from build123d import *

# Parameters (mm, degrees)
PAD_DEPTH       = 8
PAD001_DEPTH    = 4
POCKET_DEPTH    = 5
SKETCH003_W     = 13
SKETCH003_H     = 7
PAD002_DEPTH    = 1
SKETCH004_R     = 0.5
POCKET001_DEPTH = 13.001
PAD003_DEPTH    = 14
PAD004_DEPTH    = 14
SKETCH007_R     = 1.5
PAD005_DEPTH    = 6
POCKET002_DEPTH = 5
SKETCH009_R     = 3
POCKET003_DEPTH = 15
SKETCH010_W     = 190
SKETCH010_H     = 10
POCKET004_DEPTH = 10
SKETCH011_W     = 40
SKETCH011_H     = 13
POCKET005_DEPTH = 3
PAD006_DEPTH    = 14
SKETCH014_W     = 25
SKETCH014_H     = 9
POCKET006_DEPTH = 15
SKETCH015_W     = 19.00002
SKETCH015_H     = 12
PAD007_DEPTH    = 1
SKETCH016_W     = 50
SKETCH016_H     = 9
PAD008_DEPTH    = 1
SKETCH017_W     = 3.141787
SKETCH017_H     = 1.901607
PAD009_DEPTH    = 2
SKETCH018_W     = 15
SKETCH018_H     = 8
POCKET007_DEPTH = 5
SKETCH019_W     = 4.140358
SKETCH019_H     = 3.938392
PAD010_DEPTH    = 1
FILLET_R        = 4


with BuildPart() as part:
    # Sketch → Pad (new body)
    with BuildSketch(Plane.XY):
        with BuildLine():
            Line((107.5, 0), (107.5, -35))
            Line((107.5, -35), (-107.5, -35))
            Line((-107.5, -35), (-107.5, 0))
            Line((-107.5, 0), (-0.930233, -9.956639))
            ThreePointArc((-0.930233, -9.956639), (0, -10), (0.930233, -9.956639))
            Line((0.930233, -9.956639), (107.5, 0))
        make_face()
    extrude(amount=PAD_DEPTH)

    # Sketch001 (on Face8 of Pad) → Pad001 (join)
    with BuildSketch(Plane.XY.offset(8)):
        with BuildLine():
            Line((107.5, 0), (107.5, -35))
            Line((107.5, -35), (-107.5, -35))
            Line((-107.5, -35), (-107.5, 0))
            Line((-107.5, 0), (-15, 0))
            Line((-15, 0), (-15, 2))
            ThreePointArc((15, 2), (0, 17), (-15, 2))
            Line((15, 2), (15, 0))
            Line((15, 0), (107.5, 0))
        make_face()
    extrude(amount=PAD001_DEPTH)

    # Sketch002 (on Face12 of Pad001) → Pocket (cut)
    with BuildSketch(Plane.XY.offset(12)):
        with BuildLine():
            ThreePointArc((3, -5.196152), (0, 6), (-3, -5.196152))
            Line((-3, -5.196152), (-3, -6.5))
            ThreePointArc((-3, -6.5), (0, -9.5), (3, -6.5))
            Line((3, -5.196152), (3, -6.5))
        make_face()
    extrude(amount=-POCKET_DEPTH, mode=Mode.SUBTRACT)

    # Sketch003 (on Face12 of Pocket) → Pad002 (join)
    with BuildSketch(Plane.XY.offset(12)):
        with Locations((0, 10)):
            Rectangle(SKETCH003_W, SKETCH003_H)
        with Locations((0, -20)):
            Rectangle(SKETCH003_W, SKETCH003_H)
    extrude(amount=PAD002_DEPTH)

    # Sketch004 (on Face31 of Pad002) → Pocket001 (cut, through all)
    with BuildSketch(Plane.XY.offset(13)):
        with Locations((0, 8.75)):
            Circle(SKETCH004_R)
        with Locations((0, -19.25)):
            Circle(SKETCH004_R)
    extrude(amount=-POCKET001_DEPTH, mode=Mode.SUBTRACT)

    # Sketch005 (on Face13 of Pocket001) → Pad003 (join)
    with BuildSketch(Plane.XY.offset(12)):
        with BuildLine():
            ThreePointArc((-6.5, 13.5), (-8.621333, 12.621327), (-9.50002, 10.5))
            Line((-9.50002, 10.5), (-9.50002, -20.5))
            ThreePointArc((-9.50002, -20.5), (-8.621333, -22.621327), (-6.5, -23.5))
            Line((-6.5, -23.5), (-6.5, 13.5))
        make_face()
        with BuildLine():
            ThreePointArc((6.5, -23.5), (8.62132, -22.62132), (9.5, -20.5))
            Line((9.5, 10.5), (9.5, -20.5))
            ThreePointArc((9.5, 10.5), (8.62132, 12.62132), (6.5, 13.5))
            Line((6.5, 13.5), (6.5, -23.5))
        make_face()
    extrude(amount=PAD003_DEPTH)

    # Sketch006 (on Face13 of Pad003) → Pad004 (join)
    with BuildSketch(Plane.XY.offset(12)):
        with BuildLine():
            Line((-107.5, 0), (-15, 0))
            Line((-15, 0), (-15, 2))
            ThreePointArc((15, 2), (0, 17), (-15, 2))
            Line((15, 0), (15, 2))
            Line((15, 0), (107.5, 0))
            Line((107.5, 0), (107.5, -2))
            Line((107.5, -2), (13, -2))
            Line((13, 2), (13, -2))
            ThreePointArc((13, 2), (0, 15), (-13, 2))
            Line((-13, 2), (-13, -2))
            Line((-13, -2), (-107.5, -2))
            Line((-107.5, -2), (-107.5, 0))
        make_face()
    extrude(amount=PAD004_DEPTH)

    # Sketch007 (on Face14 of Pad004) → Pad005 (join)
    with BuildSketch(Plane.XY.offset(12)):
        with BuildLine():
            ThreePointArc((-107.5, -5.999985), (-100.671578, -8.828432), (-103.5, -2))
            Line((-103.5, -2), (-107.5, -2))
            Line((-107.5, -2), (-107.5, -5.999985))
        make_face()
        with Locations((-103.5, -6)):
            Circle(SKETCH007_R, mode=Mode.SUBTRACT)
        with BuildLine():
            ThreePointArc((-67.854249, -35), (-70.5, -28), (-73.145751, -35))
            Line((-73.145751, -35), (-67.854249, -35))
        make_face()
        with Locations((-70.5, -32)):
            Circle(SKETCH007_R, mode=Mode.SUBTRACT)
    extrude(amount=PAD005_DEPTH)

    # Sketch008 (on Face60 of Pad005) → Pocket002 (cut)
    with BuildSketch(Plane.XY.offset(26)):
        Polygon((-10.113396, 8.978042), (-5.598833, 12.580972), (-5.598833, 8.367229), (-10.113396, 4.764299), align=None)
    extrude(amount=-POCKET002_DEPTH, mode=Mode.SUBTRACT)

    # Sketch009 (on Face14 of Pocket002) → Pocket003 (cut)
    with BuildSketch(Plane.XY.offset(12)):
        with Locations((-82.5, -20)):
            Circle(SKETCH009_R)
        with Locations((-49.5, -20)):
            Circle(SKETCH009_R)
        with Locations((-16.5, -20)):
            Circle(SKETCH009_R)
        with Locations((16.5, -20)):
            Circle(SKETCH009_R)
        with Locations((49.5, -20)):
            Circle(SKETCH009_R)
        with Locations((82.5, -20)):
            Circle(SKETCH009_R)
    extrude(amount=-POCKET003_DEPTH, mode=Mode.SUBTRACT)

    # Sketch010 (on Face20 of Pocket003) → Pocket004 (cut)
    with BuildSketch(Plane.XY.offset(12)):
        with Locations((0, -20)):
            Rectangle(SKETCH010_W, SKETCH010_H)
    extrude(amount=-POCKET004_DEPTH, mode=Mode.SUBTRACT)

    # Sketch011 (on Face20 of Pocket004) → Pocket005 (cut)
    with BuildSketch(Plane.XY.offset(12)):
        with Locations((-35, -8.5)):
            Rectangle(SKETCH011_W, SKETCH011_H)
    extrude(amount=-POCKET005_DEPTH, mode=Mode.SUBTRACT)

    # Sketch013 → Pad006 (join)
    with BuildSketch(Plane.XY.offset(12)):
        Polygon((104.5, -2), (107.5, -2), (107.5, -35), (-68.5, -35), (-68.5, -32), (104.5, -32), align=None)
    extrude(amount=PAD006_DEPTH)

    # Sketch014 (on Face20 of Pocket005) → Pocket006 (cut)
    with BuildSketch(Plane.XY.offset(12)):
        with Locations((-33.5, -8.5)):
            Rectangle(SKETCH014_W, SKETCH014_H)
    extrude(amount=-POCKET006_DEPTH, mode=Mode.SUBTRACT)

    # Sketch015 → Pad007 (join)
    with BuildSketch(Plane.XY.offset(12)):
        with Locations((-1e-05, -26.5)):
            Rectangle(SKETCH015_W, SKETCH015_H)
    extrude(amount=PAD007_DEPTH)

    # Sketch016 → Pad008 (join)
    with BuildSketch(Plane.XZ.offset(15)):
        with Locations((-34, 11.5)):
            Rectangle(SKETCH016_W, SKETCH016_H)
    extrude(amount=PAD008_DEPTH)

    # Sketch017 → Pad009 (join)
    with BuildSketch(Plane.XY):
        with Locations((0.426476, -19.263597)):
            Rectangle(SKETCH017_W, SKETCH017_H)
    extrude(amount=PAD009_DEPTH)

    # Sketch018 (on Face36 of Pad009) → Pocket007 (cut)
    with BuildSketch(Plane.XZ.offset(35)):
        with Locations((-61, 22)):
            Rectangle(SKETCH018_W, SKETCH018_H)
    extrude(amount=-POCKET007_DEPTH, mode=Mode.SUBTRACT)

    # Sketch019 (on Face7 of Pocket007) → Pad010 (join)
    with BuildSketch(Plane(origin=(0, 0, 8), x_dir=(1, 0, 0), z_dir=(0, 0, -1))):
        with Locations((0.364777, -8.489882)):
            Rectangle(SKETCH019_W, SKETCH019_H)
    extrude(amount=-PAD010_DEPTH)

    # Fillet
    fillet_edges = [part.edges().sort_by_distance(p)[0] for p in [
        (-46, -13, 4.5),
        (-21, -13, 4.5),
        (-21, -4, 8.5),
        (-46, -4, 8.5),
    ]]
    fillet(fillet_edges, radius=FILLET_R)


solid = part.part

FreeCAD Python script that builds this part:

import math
import FreeCAD as App
import Part
import Sketcher

V = App.Vector


def edges_at(feature, points):
    """Names of the edges that pass closest to the given points."""
    edges = feature.Shape.Edges
    near = lambda p: min(range(len(edges)), key=lambda i: edges[i].distToShape(Part.Vertex(*p))[0])
    return sorted({f"Edge{near(p) + 1}" for p in points})

doc = App.newDocument("Part")
params = doc.addObject("Spreadsheet::Sheet", "Params")
for row, (alias, value) in enumerate([
    ("sketch1_width", "215 mm"),
    ("sketch1_height", "35 mm"),
    ("pad1_length", "8 mm"),
    ("sketch2_radius", "15 mm"),
    ("sketch2_width", "215 mm"),
    ("sketch2_height", "35 mm"),
    ("sketch2_height2", "2 mm"),
    ("pad2_length", "4 mm"),
    ("sketch3_radius", "6 mm"),
    ("sketch3_radius2", "3 mm"),
    ("pocket1_length", "5 mm"),
    ("sketch4_width", "13 mm"),
    ("sketch4_height", "7 mm"),
    ("pad3_length", "1 mm"),
    ("sketch5_diameter", "1 mm"),
    ("sketch6_radius", "3.000001 mm"),
    ("sketch6_height", "31 mm"),
    ("pad4_length", "14 mm"),
    ("sketch7_radius", "13 mm"),
    ("sketch7_radius2", "15 mm"),
    ("sketch7_height", "2 mm"),
    ("sketch7_width", "92.5 mm"),
    ("pad5_length", "14 mm"),
    ("sketch8_diameter", "3 mm"),
    ("sketch8_radius", "4 mm"),
    ("pad6_length", "6 mm"),
    ("pocket3_length", "5 mm"),
    ("sketch10_diameter", "6 mm"),
    ("pocket4_length", "15 mm"),
    ("sketch11_width", "190 mm"),
    ("sketch11_height", "10 mm"),
    ("pocket5_length", "10 mm"),
    ("sketch12_width", "40 mm"),
    ("sketch12_height", "13 mm"),
    ("pocket6_length", "3 mm"),
    ("sketch13_width", "3 mm"),
    ("sketch13_width2", "173 mm"),
    ("sketch13_height", "30 mm"),
    ("pad7_length", "14 mm"),
    ("sketch14_width", "25 mm"),
    ("sketch14_height", "9 mm"),
    ("pocket7_length", "15 mm"),
    ("sketch15_height", "12 mm"),
    ("pad8_length", "1 mm"),
    ("sketch16_width", "50 mm"),
    ("sketch16_height", "9 mm"),
    ("pad9_length", "1 mm"),
    ("pad10_length", "2 mm"),
    ("sketch18_width", "15 mm"),
    ("sketch18_height", "8 mm"),
    ("pocket8_length", "5 mm"),
    ("pad11_length", "1 mm"),
    ("fillet_radius", "4 mm"),
], start=1):
    params.set(f"A{row}", alias)
    params.set(f"B{row}", "=" + value)
    params.setAlias(f"B{row}", alias)

body = doc.addObject("PartDesign::Body", "Body")

# Sketch on XY plane
sketch1 = body.newObject("Sketcher::SketchObject", "Sketch")
sketch1.AttachmentSupport = (doc.getObject("XY_Plane"), [""])
sketch1.MapMode = "FlatFace"
sketch1.addGeometry([
    Part.LineSegment(V(107.5, -35, 0), V(107.5, 0, 0)),  # 0
    Part.LineSegment(V(107.5, 0, 0), V(0.9, -10, 0)),  # 1
    Part.ArcOfCircle(Part.Circle(V(0, 0, 0), V(0, 0, 1), 10), math.radians(-95.34), math.radians(-84.66)),  # 2
    Part.LineSegment(V(-0.9, -10, 0), V(-107.5, 0, 0)),  # 3
    Part.LineSegment(V(-107.5, 0, 0), V(-107.5, -35, 0)),  # 4
    Part.LineSegment(V(-107.5, -35, 0), V(107.5, -35, 0)),  # 5
], False)
sketch1.addConstraint([
    Sketcher.Constraint("Coincident", 0, 2, 1, 1),
    Sketcher.Constraint("Tangent", 1, 2, 2, 2),
    Sketcher.Constraint("Tangent", 2, 1, 3, 1),
    Sketcher.Constraint("Coincident", 3, 2, 4, 1),
    Sketcher.Constraint("Coincident", 4, 2, 5, 1),
    Sketcher.Constraint("Coincident", 5, 2, 0, 1),
    Sketcher.Constraint("Vertical", 0),
    Sketcher.Constraint("Vertical", 4),
    Sketcher.Constraint("Horizontal", 5),
    Sketcher.Constraint("Symmetric", 0, 2, 3, 2, -1, 1),
    Sketcher.Constraint("Symmetric", 1, 2, 2, 1, -2),
    Sketcher.Constraint("DistanceX", 5, 1, 5, 2, 215.0),
    Sketcher.Constraint("DistanceY", 0, 1, 0, 2, 35.0),
    Sketcher.Constraint("Radius", 2, 9.999926),
    Sketcher.Constraint("DistanceY", 1, 2, -1, 1, 9.956639),
])
sketch1.setExpression("Constraints[11]", "Params.sketch1_width")
sketch1.setExpression("Constraints[12]", "Params.sketch1_height")
pad1 = body.newObject("PartDesign::Pad", "Pad")
pad1.Profile = sketch1
pad1.setExpression("Length", "Params.pad1_length")

# Sketch on XY plane
sketch2 = body.newObject("Sketcher::SketchObject", "Sketch001")
sketch2.AttachmentSupport = (doc.getObject("XY_Plane"), [""])
sketch2.MapMode = "FlatFace"
sketch2.AttachmentOffset = App.Placement(V(0, 0, 8), App.Rotation())
sketch2.addGeometry([
    Part.LineSegment(V(107.5, -35, 0), V(107.5, 0, 0)),  # 0
    Part.LineSegment(V(107.5, 0, 0), V(15, 0, 0)),  # 1
    Part.LineSegment(V(15, 0, 0), V(15, 2, 0)),  # 2
    Part.ArcOfCircle(Part.Circle(V(0, 2, 0), V(0, 0, 1), 15), math.radians(0), math.radians(180)),  # 3
    Part.LineSegment(V(-15, 2, 0), V(-15, 0, 0)),  # 4
    Part.LineSegment(V(-15, 0, 0), V(-107.5, 0, 0)),  # 5
    Part.LineSegment(V(-107.5, 0, 0), V(-107.5, -35, 0)),  # 6
    Part.LineSegment(V(-107.5, -35, 0), V(107.5, -35, 0)),  # 7
], False)
sketch2.addConstraint([
    Sketcher.Constraint("Coincident", 0, 2, 1, 1),
    Sketcher.Constraint("Coincident", 1, 2, 2, 1),
    Sketcher.Constraint("Tangent", 2, 2, 3, 1),
    Sketcher.Constraint("Tangent", 3, 2, 4, 1),
    Sketcher.Constraint("Coincident", 4, 2, 5, 1),
    Sketcher.Constraint("Coincident", 5, 2, 6, 1),
    Sketcher.Constraint("Coincident", 6, 2, 7, 1),
    Sketcher.Constraint("Coincident", 7, 2, 0, 1),
    Sketcher.Constraint("Vertical", 0),
    Sketcher.Constraint("Horizontal", 1),
    Sketcher.Constraint("Vertical", 2),
    Sketcher.Constraint("Vertical", 4),
    Sketcher.Constraint("Horizontal", 5),
    Sketcher.Constraint("Vertical", 6),
    Sketcher.Constraint("Horizontal", 7),
    Sketcher.Constraint("Symmetric", 1, 2, 4, 2, -1, 1),
    Sketcher.Constraint("Symmetric", 0, 2, 5, 2, -2),
    Sketcher.Constraint("Radius", 3, 15.0),
    Sketcher.Constraint("DistanceX", 7, 1, 7, 2, 215.0),
    Sketcher.Constraint("DistanceY", 0, 1, 0, 2, 35.0),
    Sketcher.Constraint("DistanceY", 2, 1, 2, 2, 2.0),
])
sketch2.setExpression("Constraints[17]", "Params.sketch2_radius")
sketch2.setExpression("Constraints[18]", "Params.sketch2_width")
sketch2.setExpression("Constraints[19]", "Params.sketch2_height")
sketch2.setExpression("Constraints[20]", "Params.sketch2_height2")
pad2 = body.newObject("PartDesign::Pad", "Pad001")
pad2.Profile = sketch2
pad2.setExpression("Length", "Params.pad2_length")

# Sketch on XY plane
sketch3 = body.newObject("Sketcher::SketchObject", "Sketch002")
sketch3.AttachmentSupport = (doc.getObject("XY_Plane"), [""])
sketch3.MapMode = "FlatFace"
sketch3.AttachmentOffset = App.Placement(V(0, 0, 12), App.Rotation())
sketch3.addGeometry([
    Part.ArcOfCircle(Part.Circle(V(0, 0, 0), V(0, 0, 1), 6), math.radians(-60), math.radians(240)),
    Part.LineSegment(V(-3, -5.2, 0), V(-3, -6.5, 0)),
    Part.ArcOfCircle(Part.Circle(V(0, -6.5, 0), V(0, 0, 1), 3), math.radians(180), math.radians(360)),
    Part.LineSegment(V(3, -6.5, 0), V(3, -5.2, 0)),
], False)
sketch3.addConstraint([
    Sketcher.Constraint("Coincident", 0, 2, 1, 1),
    Sketcher.Constraint("Tangent", 1, 2, 2, 1),
    Sketcher.Constraint("Tangent", 2, 2, 3, 1),
    Sketcher.Constraint("Coincident", 3, 2, 0, 1),
    Sketcher.Constraint("Vertical", 1),
    Sketcher.Constraint("Vertical", 3),
    Sketcher.Constraint("Coincident", 0, 3, -1, 1),
    Sketcher.Constraint("PointOnObject", 2, 3, -2),
    Sketcher.Constraint("Radius", 0, 6.0),
    Sketcher.Constraint("Radius", 2, 3.0),
    Sketcher.Constraint("DistanceY", 2, 3, -1, 1, 6.5),
])
sketch3.setExpression("Constraints[8]", "Params.sketch3_radius")
sketch3.setExpression("Constraints[9]", "Params.sketch3_radius2")
pocket1 = body.newObject("PartDesign::Pocket", "Pocket")
pocket1.Profile = sketch3
pocket1.setExpression("Length", "Params.pocket1_length")

# Sketch on XY plane
sketch4 = body.newObject("Sketcher::SketchObject", "Sketch003")
sketch4.AttachmentSupport = (doc.getObject("XY_Plane"), [""])
sketch4.MapMode = "FlatFace"
sketch4.AttachmentOffset = App.Placement(V(0, 0, 12), App.Rotation())
sketch4.addGeometry([
    Part.LineSegment(V(-6, 14, 0), V(-6, 6, 0)),  # 0
    Part.LineSegment(V(-6, 6, 0), V(6, 6, 0)),  # 1
    Part.LineSegment(V(6, 6, 0), V(6, 14, 0)),  # 2
    Part.LineSegment(V(6, 14, 0), V(-6, 14, 0)),  # 3
    Part.LineSegment(V(-6, -16, 0), V(-6, -24, 0)),  # 4
    Part.LineSegment(V(-6, -24, 0), V(6, -24, 0)),  # 5
    Part.LineSegment(V(6, -24, 0), V(6, -16, 0)),  # 6
    Part.LineSegment(V(6, -16, 0), V(-6, -16, 0)),  # 7
], False)
sketch4.addConstraint([
    Sketcher.Constraint("Coincident", 0, 2, 1, 1),
    Sketcher.Constraint("Coincident", 1, 2, 2, 1),
    Sketcher.Constraint("Coincident", 2, 2, 3, 1),
    Sketcher.Constraint("Coincident", 3, 2, 0, 1),
    Sketcher.Constraint("Coincident", 4, 2, 5, 1),
    Sketcher.Constraint("Coincident", 5, 2, 6, 1),
    Sketcher.Constraint("Coincident", 6, 2, 7, 1),
    Sketcher.Constraint("Coincident", 7, 2, 4, 1),
    Sketcher.Constraint("Vertical", 0),
    Sketcher.Constraint("Horizontal", 1),
    Sketcher.Constraint("Vertical", 2),
    Sketcher.Constraint("Horizontal", 3),
    Sketcher.Constraint("Vertical", 4),
    Sketcher.Constraint("Horizontal", 5),
    Sketcher.Constraint("Vertical", 6),
    Sketcher.Constraint("Horizontal", 7),
    Sketcher.Constraint("Vertical", 3, 2, 4, 2),
    Sketcher.Constraint("Vertical", 2, 2, 5, 2),
    Sketcher.Constraint("Equal", 2, 4),
    Sketcher.Constraint("DistanceX", 1, 1, 1, 2, 13.0),
    Sketcher.Constraint("DistanceY", 0, 2, 0, 1, 7.0),
    Sketcher.Constraint("DistanceY", 4, 2, 0, 2, 30.0),
    Sketcher.Constraint("DistanceX", 0, 2, -1, 1, 6.5),
    Sketcher.Constraint("DistanceY", -1, 1, 0, 2, 6.5),
])
sketch4.setExpression("Constraints[19]", "Params.sketch4_width")
sketch4.setExpression("Constraints[20]", "Params.sketch4_height")
pad3 = body.newObject("PartDesign::Pad", "Pad002")
pad3.Profile = sketch4
pad3.setExpression("Length", "Params.pad3_length")

# Sketch on XY plane
sketch5 = body.newObject("Sketcher::SketchObject", "Sketch004")
sketch5.AttachmentSupport = (doc.getObject("XY_Plane"), [""])
sketch5.MapMode = "FlatFace"
sketch5.AttachmentOffset = App.Placement(V(0, 0, 13), App.Rotation())
sketch5.addGeometry([
    Part.Circle(V(0, 8.8, 0), V(0, 0, 1), 0.5),
    Part.Circle(V(0, -19.2, 0), V(0, 0, 1), 0.5),
], False)
sketch5.addConstraint([
    Sketcher.Constraint("Equal", 0, 1),
    Sketcher.Constraint("PointOnObject", 0, 3, -2),
    Sketcher.Constraint("PointOnObject", 1, 3, -2),
    Sketcher.Constraint("Diameter", 0, 1.0),
    Sketcher.Constraint("DistanceY", 1, 3, 0, 3, 28.0),
    Sketcher.Constraint("DistanceY", -1, 1, 0, 3, 8.75),
])
sketch5.setExpression("Constraints[3]", "Params.sketch5_diameter")
pocket2 = body.newObject("PartDesign::Pocket", "Pocket001")
pocket2.Profile = sketch5
pocket2.Type = "ThroughAll"

# Sketch on XY plane
sketch6 = body.newObject("Sketcher::SketchObject", "Sketch005")
sketch6.AttachmentSupport = (doc.getObject("XY_Plane"), [""])
sketch6.MapMode = "FlatFace"
sketch6.AttachmentOffset = App.Placement(V(0, 0, 12), App.Rotation())
sketch6.addGeometry([
    Part.ArcOfCircle(Part.Circle(V(-6.5, 10.5, 0), V(0, 0, 1), 3), math.radians(90), math.radians(180)),  # 0
    Part.LineSegment(V(-9.5, 10.5, 0), V(-9.5, -20.5, 0)),  # 1
    Part.ArcOfCircle(Part.Circle(V(-6.5, -20.5, 0), V(0, 0, 1), 3), math.radians(-180), math.radians(-90)),  # 2
    Part.LineSegment(V(-6.5, -23.5, 0), V(-6.5, 13.5, 0)),  # 3
    Part.ArcOfCircle(Part.Circle(V(6.5, -20.5, 0), V(0, 0, 1), 3), math.radians(-90), math.radians(0)),  # 4
    Part.LineSegment(V(9.5, -20.5, 0), V(9.5, 10.5, 0)),  # 5
    Part.ArcOfCircle(Part.Circle(V(6.5, 10.5, 0), V(0, 0, 1), 3), math.radians(0), math.radians(90)),  # 6
    Part.LineSegment(V(6.5, 13.5, 0), V(6.5, -23.5, 0)),  # 7
], False)
sketch6.addConstraint([
    Sketcher.Constraint("Tangent", 0, 2, 1, 1),
    Sketcher.Constraint("Tangent", 1, 2, 2, 1),
    Sketcher.Constraint("Coincident", 2, 2, 3, 1),
    Sketcher.Constraint("Coincident", 3, 2, 0, 1),
    Sketcher.Constraint("Tangent", 4, 2, 5, 1),
    Sketcher.Constraint("Tangent", 5, 2, 6, 1),
    Sketcher.Constraint("Coincident", 6, 2, 7, 1),
    Sketcher.Constraint("Coincident", 7, 2, 4, 1),
    Sketcher.Constraint("Vertical", 1),
    Sketcher.Constraint("Vertical", 3),
    Sketcher.Constraint("Vertical", 5),
    Sketcher.Constraint("Vertical", 7),
    Sketcher.Constraint("Equal", 0, 2),
    Sketcher.Constraint("Equal", 2, 4),
    Sketcher.Constraint("Equal", 4, 6),
    Sketcher.Constraint("Symmetric", 3, 2, 6, 2, -2),
    Sketcher.Constraint("Horizontal", 2, 3, 4, 3),
    Sketcher.Constraint("Vertical", 4, 3, 6, 2),
    Sketcher.Constraint("Radius", 0, 3.000001),
    Sketcher.Constraint("DistanceY", 1, 2, 1, 1, 31.0),
    Sketcher.Constraint("DistanceX", 2, 2, 4, 3, 12.999999),
    Sketcher.Constraint("DistanceY", -1, 1, 0, 3, 10.499999),
    Sketcher.Constraint("DistanceX", 0, 3, -1, 1, 6.500019),
])
sketch6.setExpression("Constraints[18]", "Params.sketch6_radius")
sketch6.setExpression("Constraints[19]", "Params.sketch6_height")
pad4 = body.newObject("PartDesign::Pad", "Pad003")
pad4.Profile = sketch6
pad4.setExpression("Length", "Params.pad4_length")

# Sketch on XY plane
sketch7 = body.newObject("Sketcher::SketchObject", "Sketch006")
sketch7.AttachmentSupport = (doc.getObject("XY_Plane"), [""])
sketch7.MapMode = "FlatFace"
sketch7.AttachmentOffset = App.Placement(V(0, 0, 12), App.Rotation())
sketch7.addGeometry([
    Part.LineSegment(V(-15, 0, 0), V(-107.5, 0, 0)),  # 0
    Part.LineSegment(V(-107.5, 0, 0), V(-107.5, -2, 0)),  # 1
    Part.LineSegment(V(-107.5, -2, 0), V(-13, -2, 0)),  # 2
    Part.LineSegment(V(-13, -2, 0), V(-13, 2, 0)),  # 3
    Part.ArcOfCircle(Part.Circle(V(0, 2, 0), V(0, 0, 1), 13), math.radians(0), math.radians(180)),  # 4
    Part.LineSegment(V(13, 2, 0), V(13, -2, 0)),  # 5
    Part.LineSegment(V(13, -2, 0), V(107.5, -2, 0)),  # 6
    Part.LineSegment(V(107.5, -2, 0), V(107.5, 0, 0)),  # 7
    Part.LineSegment(V(107.5, 0, 0), V(15, 0, 0)),  # 8
    Part.LineSegment(V(15, 0, 0), V(15, 2, 0)),  # 9
    Part.ArcOfCircle(Part.Circle(V(0, 2, 0), V(0, 0, 1), 15), math.radians(0), math.radians(180)),  # 10
    Part.LineSegment(V(-15, 2, 0), V(-15, 0, 0)),  # 11
], False)
sketch7.addConstraint([
    Sketcher.Constraint("Coincident", 0, 2, 1, 1),
    Sketcher.Constraint("Coincident", 1, 2, 2, 1),
    Sketcher.Constraint("Coincident", 2, 2, 3, 1),
    Sketcher.Constraint("Tangent", 3, 2, 4, 2),
    Sketcher.Constraint("Tangent", 4, 1, 5, 1),
    Sketcher.Constraint("Coincident", 5, 2, 6, 1),
    Sketcher.Constraint("Coincident", 6, 2, 7, 1),
    Sketcher.Constraint("Coincident", 7, 2, 8, 1),
    Sketcher.Constraint("Coincident", 8, 2, 9, 1),
    Sketcher.Constraint("Tangent", 9, 2, 10, 1),
    Sketcher.Constraint("Tangent", 10, 2, 11, 1),
    Sketcher.Constraint("Coincident", 11, 2, 0, 1),
    Sketcher.Constraint("Horizontal", 0),
    Sketcher.Constraint("Vertical", 1),
    Sketcher.Constraint("Horizontal", 2),
    Sketcher.Constraint("Vertical", 3),
    Sketcher.Constraint("Vertical", 5),
    Sketcher.Constraint("Horizontal", 6),
    Sketcher.Constraint("Vertical", 7),
    Sketcher.Constraint("Horizontal", 8),
    Sketcher.Constraint("Vertical", 9),
    Sketcher.Constraint("Vertical", 11),
    Sketcher.Constraint("Coincident", 10, 3, 4, 3),
    Sketcher.Constraint("Symmetric", 2, 2, 4, 1, -1, 1),
    Sketcher.Constraint("Symmetric", 0, 2, 7, 2, -1, 1),
    Sketcher.Constraint("PointOnObject", 0, 2, -1),
    Sketcher.Constraint("Horizontal", 2, 2, 5, 2),
    Sketcher.Constraint("Radius", 4, 13.0),
    Sketcher.Constraint("Radius", 10, 15.0),
    Sketcher.Constraint("DistanceY", 1, 2, 1, 1, 2.0),
    Sketcher.Constraint("DistanceX", 0, 2, 0, 1, 92.5),
])
sketch7.setExpression("Constraints[27]", "Params.sketch7_radius")
sketch7.setExpression("Constraints[28]", "Params.sketch7_radius2")
sketch7.setExpression("Constraints[29]", "Params.sketch7_height")
sketch7.setExpression("Constraints[30]", "Params.sketch7_width")
pad5 = body.newObject("PartDesign::Pad", "Pad004")
pad5.Profile = sketch7
pad5.setExpression("Length", "Params.pad5_length")

# Sketch on XY plane
sketch8 = body.newObject("Sketcher::SketchObject", "Sketch007")
sketch8.AttachmentSupport = (doc.getObject("XY_Plane"), [""])
sketch8.MapMode = "FlatFace"
sketch8.AttachmentOffset = App.Placement(V(0, 0, 12), App.Rotation())
sketch8.addGeometry([
    Part.ArcOfCircle(Part.Circle(V(-103.5, -6, 0), V(0, 0, 1), 4), math.radians(180), math.radians(450)),  # 0
    Part.LineSegment(V(-103.5, -2, 0), V(-107.5, -2, 0)),  # 1
    Part.LineSegment(V(-107.5, -2, 0), V(-107.5, -6, 0)),  # 2
    Part.Circle(V(-103.5, -6, 0), V(0, 0, 1), 1.5),  # 3
    Part.ArcOfCircle(Part.Circle(V(-70.5, -32, 0), V(0, 0, 1), 4), math.radians(-49), math.radians(229)),  # 4
    Part.LineSegment(V(-73.1, -35, 0), V(-67.9, -35, 0)),  # 5
    Part.Circle(V(-70.5, -32, 0), V(0, 0, 1), 1.5),  # 6
], False)
sketch8.addConstraint([
    Sketcher.Constraint("Tangent", 0, 2, 1, 1),
    Sketcher.Constraint("Coincident", 1, 2, 2, 1),
    Sketcher.Constraint("Coincident", 2, 2, 0, 1),
    Sketcher.Constraint("Coincident", 4, 1, 5, 2),
    Sketcher.Constraint("Coincident", 5, 1, 4, 2),
    Sketcher.Constraint("Horizontal", 1),
    Sketcher.Constraint("Vertical", 2),
    Sketcher.Constraint("Horizontal", 5),
    Sketcher.Constraint("Coincident", 3, 3, 0, 3),
    Sketcher.Constraint("Coincident", 6, 3, 4, 3),
    Sketcher.Constraint("Equal", 0, 4),
    Sketcher.Constraint("Equal", 3, 6),
    Sketcher.Constraint("Diameter", 3, 3.0),
    Sketcher.Constraint("Radius", 0, 4.0),
    Sketcher.Constraint("DistanceY", 0, 3, -1, 1, 6.0),
    Sketcher.Constraint("DistanceY", 4, 3, -1, 1, 32.0),
    Sketcher.Constraint("DistanceY", 4, 1, -1, 1, 35.0),
    Sketcher.Constraint("DistanceX", 3, 3, 4, 3, 33.0),
    Sketcher.Constraint("DistanceX", 0, 3, -1, 1, 103.5),
    Sketcher.Constraint("DistanceY", 2, 2, 2, 1, 3.999985),
])
sketch8.setExpression("Constraints[12]", "Params.sketch8_diameter")
sketch8.setExpression("Constraints[13]", "Params.sketch8_radius")
pad6 = body.newObject("PartDesign::Pad", "Pad005")
pad6.Profile = sketch8
pad6.setExpression("Length", "Params.pad6_length")

# Sketch on XY plane
sketch9 = body.newObject("Sketcher::SketchObject", "Sketch008")
sketch9.AttachmentSupport = (doc.getObject("XY_Plane"), [""])
sketch9.MapMode = "FlatFace"
sketch9.AttachmentOffset = App.Placement(V(0, 0, 26), App.Rotation())
sketch9.addGeometry([
    Part.LineSegment(V(-5.6, 12.6, 0), V(-10.1, 9, 0)),
    Part.LineSegment(V(-10.1, 9, 0), V(-10.1, 4.8, 0)),
    Part.LineSegment(V(-10.1, 4.8, 0), V(-5.6, 8.4, 0)),
    Part.LineSegment(V(-5.6, 8.4, 0), V(-5.6, 12.6, 0)),
], False)
sketch9.addConstraint([
    Sketcher.Constraint("Coincident", 0, 2, 1, 1),
    Sketcher.Constraint("Coincident", 1, 2, 2, 1),
    Sketcher.Constraint("Coincident", 2, 2, 3, 1),
    Sketcher.Constraint("Coincident", 3, 2, 0, 1),
    Sketcher.Constraint("Vertical", 1),
    Sketcher.Constraint("Vertical", 3),
    Sketcher.Constraint("Parallel", 0, 2),
    Sketcher.Constraint("DistanceY", -1, 1, 1, 2, 4.764299),
    Sketcher.Constraint("DistanceY", 1, 2, 1, 1, 4.213743),
    Sketcher.Constraint("DistanceY", -1, 1, 2, 2, 8.367229),
    Sketcher.Constraint("Distance", 0, 5.776018),
    Sketcher.Constraint("DistanceX", 0, 2, -1, 1, 10.113396),
])
pocket3 = body.newObject("PartDesign::Pocket", "Pocket002")
pocket3.Profile = sketch9
pocket3.setExpression("Length", "Params.pocket3_length")

# Sketch on XY plane
sketch10 = body.newObject("Sketcher::SketchObject", "Sketch009")
sketch10.AttachmentSupport = (doc.getObject("XY_Plane"), [""])
sketch10.MapMode = "FlatFace"
sketch10.AttachmentOffset = App.Placement(V(0, 0, 12), App.Rotation())
sketch10.addGeometry([
    Part.Circle(V(-82.5, -20, 0), V(0, 0, 1), 3),  # 0
    Part.Circle(V(-49.5, -20, 0), V(0, 0, 1), 3),  # 1
    Part.Circle(V(-16.5, -20, 0), V(0, 0, 1), 3),  # 2
    Part.Circle(V(16.5, -20, 0), V(0, 0, 1), 3),  # 3
    Part.Circle(V(49.5, -20, 0), V(0, 0, 1), 3),  # 4
    Part.Circle(V(82.5, -20, 0), V(0, 0, 1), 3),  # 5
], False)
sketch10.addConstraint([
    Sketcher.Constraint("Equal", 0, 1),
    Sketcher.Constraint("Equal", 1, 2),
    Sketcher.Constraint("Equal", 2, 3),
    Sketcher.Constraint("Equal", 3, 4),
    Sketcher.Constraint("Equal", 4, 5),
    Sketcher.Constraint("Symmetric", 2, 3, 3, 3, -2),
    Sketcher.Constraint("Symmetric", 1, 3, 4, 3, -2),
    Sketcher.Constraint("Symmetric", 0, 3, 5, 3, -2),
    Sketcher.Constraint("Horizontal", 0, 3, 1, 3),
    Sketcher.Constraint("Horizontal", 1, 3, 2, 3),
    Sketcher.Constraint("Diameter", 0, 6.0),
    Sketcher.Constraint("DistanceY", 0, 3, -1, 1, 20.0),
    Sketcher.Constraint("DistanceX", 0, 3, 1, 3, 33.0),
    Sketcher.Constraint("DistanceX", 1, 3, 2, 3, 33.0),
    Sketcher.Constraint("DistanceX", 2, 3, 3, 3, 33.0),
])
sketch10.setExpression("Constraints[10]", "Params.sketch10_diameter")
pocket4 = body.newObject("PartDesign::Pocket", "Pocket003")
pocket4.Profile = sketch10
pocket4.setExpression("Length", "Params.pocket4_length")

# Sketch on XY plane
sketch11 = body.newObject("Sketcher::SketchObject", "Sketch010")
sketch11.AttachmentSupport = (doc.getObject("XY_Plane"), [""])
sketch11.MapMode = "FlatFace"
sketch11.AttachmentOffset = App.Placement(V(0, 0, 12), App.Rotation())
sketch11.addGeometry([
    Part.LineSegment(V(-95, -15, 0), V(-95, -25, 0)),
    Part.LineSegment(V(-95, -25, 0), V(95, -25, 0)),
    Part.LineSegment(V(95, -25, 0), V(95, -15, 0)),
    Part.LineSegment(V(95, -15, 0), V(-95, -15, 0)),
], False)
sketch11.addConstraint([
    Sketcher.Constraint("Coincident", 0, 2, 1, 1),
    Sketcher.Constraint("Coincident", 1, 2, 2, 1),
    Sketcher.Constraint("Coincident", 2, 2, 3, 1),
    Sketcher.Constraint("Coincident", 3, 2, 0, 1),
    Sketcher.Constraint("Vertical", 0),
    Sketcher.Constraint("Horizontal", 1),
    Sketcher.Constraint("Vertical", 2),
    Sketcher.Constraint("Horizontal", 3),
    Sketcher.Constraint("DistanceX", 1, 1, 1, 2, 190.0),
    Sketcher.Constraint("DistanceY", 0, 2, 0, 1, 10.0),
    Sketcher.Constraint("DistanceX", 0, 2, -1, 1, 95.0),
    Sketcher.Constraint("DistanceY", 0, 2, -1, 1, 25.0),
])
sketch11.setExpression("Constraints[8]", "Params.sketch11_width")
sketch11.setExpression("Constraints[9]", "Params.sketch11_height")
pocket5 = body.newObject("PartDesign::Pocket", "Pocket004")
pocket5.Profile = sketch11
pocket5.setExpression("Length", "Params.pocket5_length")

# Sketch on XY plane
sketch12 = body.newObject("Sketcher::SketchObject", "Sketch011")
sketch12.AttachmentSupport = (doc.getObject("XY_Plane"), [""])
sketch12.MapMode = "FlatFace"
sketch12.AttachmentOffset = App.Placement(V(0, 0, 12), App.Rotation())
sketch12.addGeometry([
    Part.LineSegment(V(-55, -2, 0), V(-55, -15, 0)),
    Part.LineSegment(V(-55, -15, 0), V(-15, -15, 0)),
    Part.LineSegment(V(-15, -15, 0), V(-15, -2, 0)),
    Part.LineSegment(V(-15, -2, 0), V(-55, -2, 0)),
], False)
sketch12.addConstraint([
    Sketcher.Constraint("Coincident", 0, 2, 1, 1),
    Sketcher.Constraint("Coincident", 1, 2, 2, 1),
    Sketcher.Constraint("Coincident", 2, 2, 3, 1),
    Sketcher.Constraint("Coincident", 3, 2, 0, 1),
    Sketcher.Constraint("Vertical", 0),
    Sketcher.Constraint("Horizontal", 1),
    Sketcher.Constraint("Vertical", 2),
    Sketcher.Constraint("Horizontal", 3),
    Sketcher.Constraint("DistanceX", 1, 1, 1, 2, 40.0),
    Sketcher.Constraint("DistanceY", 0, 2, 0, 1, 13.0),
    Sketcher.Constraint("DistanceX", 0, 2, -1, 1, 55.0),
    Sketcher.Constraint("DistanceY", 0, 2, -1, 1, 15.0),
])
sketch12.setExpression("Constraints[8]", "Params.sketch12_width")
sketch12.setExpression("Constraints[9]", "Params.sketch12_height")
pocket6 = body.newObject("PartDesign::Pocket", "Pocket005")
pocket6.Profile = sketch12
pocket6.setExpression("Length", "Params.pocket6_length")

# Sketch on XY plane
sketch13 = body.newObject("Sketcher::SketchObject", "Sketch012")
sketch13.AttachmentSupport = (doc.getObject("XY_Plane"), [""])
sketch13.MapMode = "FlatFace"
sketch13.AttachmentOffset = App.Placement(V(0, 0, 12), App.Rotation())
sketch13.addGeometry([
    Part.LineSegment(V(107.5, -2, 0), V(104.5, -2, 0)),  # 0
    Part.LineSegment(V(104.5, -2, 0), V(104.5, -32, 0)),  # 1
    Part.LineSegment(V(104.5, -32, 0), V(-68.5, -32, 0)),  # 2
    Part.LineSegment(V(-68.5, -32, 0), V(-68.5, -35, 0)),  # 3
    Part.LineSegment(V(-68.5, -35, 0), V(107.5, -35, 0)),  # 4
    Part.LineSegment(V(107.5, -35, 0), V(107.5, -2, 0)),  # 5
], False)
sketch13.addConstraint([
    Sketcher.Constraint("Coincident", 0, 2, 1, 1),
    Sketcher.Constraint("Coincident", 1, 2, 2, 1),
    Sketcher.Constraint("Coincident", 2, 2, 3, 1),
    Sketcher.Constraint("Coincident", 3, 2, 4, 1),
    Sketcher.Constraint("Coincident", 4, 2, 5, 1),
    Sketcher.Constraint("Coincident", 5, 2, 0, 1),
    Sketcher.Constraint("Horizontal", 0),
    Sketcher.Constraint("Vertical", 1),
    Sketcher.Constraint("Horizontal", 2),
    Sketcher.Constraint("Vertical", 3),
    Sketcher.Constraint("Horizontal", 4),
    Sketcher.Constraint("Vertical", 5),
    Sketcher.Constraint("Equal", 0, 3),
    Sketcher.Constraint("DistanceX", 0, 2, 0, 1, 3.0),
    Sketcher.Constraint("DistanceX", 2, 2, 2, 1, 173.0),
    Sketcher.Constraint("DistanceY", 1, 2, 1, 1, 30.0),
    Sketcher.Constraint("DistanceY", 0, 2, -1, 1, 2.0),
    Sketcher.Constraint("DistanceX", -1, 1, 0, 2, 104.5),
])
sketch13.setExpression("Constraints[13]", "Params.sketch13_width")
sketch13.setExpression("Constraints[14]", "Params.sketch13_width2")
sketch13.setExpression("Constraints[15]", "Params.sketch13_height")
pad7 = body.newObject("PartDesign::Pad", "Pad006")
pad7.Profile = sketch13
pad7.setExpression("Length", "Params.pad7_length")

# Sketch on XY plane
sketch14 = body.newObject("Sketcher::SketchObject", "Sketch013")
sketch14.AttachmentSupport = (doc.getObject("XY_Plane"), [""])
sketch14.MapMode = "FlatFace"
sketch14.AttachmentOffset = App.Placement(V(0, 0, 12), App.Rotation())
sketch14.addGeometry([
    Part.LineSegment(V(-46, -4, 0), V(-46, -13, 0)),
    Part.LineSegment(V(-46, -13, 0), V(-21, -13, 0)),
    Part.LineSegment(V(-21, -13, 0), V(-21, -4, 0)),
    Part.LineSegment(V(-21, -4, 0), V(-46, -4, 0)),
], False)
sketch14.addConstraint([
    Sketcher.Constraint("Coincident", 0, 2, 1, 1),
    Sketcher.Constraint("Coincident", 1, 2, 2, 1),
    Sketcher.Constraint("Coincident", 2, 2, 3, 1),
    Sketcher.Constraint("Coincident", 3, 2, 0, 1),
    Sketcher.Constraint("Vertical", 0),
    Sketcher.Constraint("Horizontal", 1),
    Sketcher.Constraint("Vertical", 2),
    Sketcher.Constraint("Horizontal", 3),
    Sketcher.Constraint("DistanceX", 1, 1, 1, 2, 25.0),
    Sketcher.Constraint("DistanceY", 0, 2, 0, 1, 9.0),
    Sketcher.Constraint("DistanceX", 0, 2, -1, 1, 46.0),
    Sketcher.Constraint("DistanceY", 0, 2, -1, 1, 13.0),
])
sketch14.setExpression("Constraints[8]", "Params.sketch14_width")
sketch14.setExpression("Constraints[9]", "Params.sketch14_height")
pocket7 = body.newObject("PartDesign::Pocket", "Pocket006")
pocket7.Profile = sketch14
pocket7.setExpression("Length", "Params.pocket7_length")

# Sketch on XY plane
sketch15 = body.newObject("Sketcher::SketchObject", "Sketch014")
sketch15.AttachmentSupport = (doc.getObject("XY_Plane"), [""])
sketch15.MapMode = "FlatFace"
sketch15.AttachmentOffset = App.Placement(V(0, 0, 12), App.Rotation())
sketch15.addGeometry([
    Part.LineSegment(V(-10, -20, 0), V(-10, -32, 0)),
    Part.LineSegment(V(-10, -32, 0), V(10, -32, 0)),
    Part.LineSegment(V(10, -32, 0), V(10, -20, 0)),
    Part.LineSegment(V(10, -20, 0), V(-10, -20, 0)),
], False)
sketch15.addConstraint([
    Sketcher.Constraint("Coincident", 0, 2, 1, 1),
    Sketcher.Constraint("Coincident", 1, 2, 2, 1),
    Sketcher.Constraint("Coincident", 2, 2, 3, 1),
    Sketcher.Constraint("Coincident", 3, 2, 0, 1),
    Sketcher.Constraint("Vertical", 0),
    Sketcher.Constraint("Horizontal", 1),
    Sketcher.Constraint("Vertical", 2),
    Sketcher.Constraint("Horizontal", 3),
    Sketcher.Constraint("DistanceY", 0, 2, 0, 1, 12.0),
    Sketcher.Constraint("DistanceY", 0, 2, -1, 1, 32.5),
    Sketcher.Constraint("DistanceX", -1, 1, 1, 2, 9.5),
    Sketcher.Constraint("DistanceX", 1, 1, 1, 2, 19.00002),
])
sketch15.setExpression("Constraints[8]", "Params.sketch15_height")
pad8 = body.newObject("PartDesign::Pad", "Pad007")
pad8.Profile = sketch15
pad8.setExpression("Length", "Params.pad8_length")

# Sketch on XZ plane
sketch16 = body.newObject("Sketcher::SketchObject", "Sketch015")
sketch16.AttachmentSupport = (doc.getObject("XZ_Plane"), [""])
sketch16.MapMode = "FlatFace"
sketch16.AttachmentOffset = App.Placement(V(0, 0, 15), App.Rotation())
sketch16.addGeometry([
    Part.LineSegment(V(-59, 16, 0), V(-59, 7, 0)),
    Part.LineSegment(V(-59, 7, 0), V(-9, 7, 0)),
    Part.LineSegment(V(-9, 7, 0), V(-9, 16, 0)),
    Part.LineSegment(V(-9, 16, 0), V(-59, 16, 0)),
], False)
sketch16.addConstraint([
    Sketcher.Constraint("Coincident", 0, 2, 1, 1),
    Sketcher.Constraint("Coincident", 1, 2, 2, 1),
    Sketcher.Constraint("Coincident", 2, 2, 3, 1),
    Sketcher.Constraint("Coincident", 3, 2, 0, 1),
    Sketcher.Constraint("Vertical", 0),
    Sketcher.Constraint("Horizontal", 1),
    Sketcher.Constraint("Vertical", 2),
    Sketcher.Constraint("Horizontal", 3),
    Sketcher.Constraint("DistanceX", 1, 1, 1, 2, 50.0),
    Sketcher.Constraint("DistanceY", 0, 2, 0, 1, 9.0),
    Sketcher.Constraint("DistanceX", 0, 2, -1, 1, 59.0),
    Sketcher.Constraint("DistanceY", -1, 1, 0, 2, 7.0),
])
sketch16.setExpression("Constraints[8]", "Params.sketch16_width")
sketch16.setExpression("Constraints[9]", "Params.sketch16_height")
pad9 = body.newObject("PartDesign::Pad", "Pad008")
pad9.Profile = sketch16
pad9.setExpression("Length", "Params.pad9_length")

# Sketch on XY plane
sketch17 = body.newObject("Sketcher::SketchObject", "Sketch016")
sketch17.AttachmentSupport = (doc.getObject("XY_Plane"), [""])
sketch17.MapMode = "FlatFace"
sketch17.addGeometry([
    Part.LineSegment(V(-1.1, -18.3, 0), V(-1.1, -20.2, 0)),
    Part.LineSegment(V(-1.1, -20.2, 0), V(2, -20.2, 0)),
    Part.LineSegment(V(2, -20.2, 0), V(2, -18.3, 0)),
    Part.LineSegment(V(2, -18.3, 0), V(-1.1, -18.3, 0)),
], False)
sketch17.addConstraint([
    Sketcher.Constraint("Coincident", 0, 2, 1, 1),
    Sketcher.Constraint("Coincident", 1, 2, 2, 1),
    Sketcher.Constraint("Coincident", 2, 2, 3, 1),
    Sketcher.Constraint("Coincident", 3, 2, 0, 1),
    Sketcher.Constraint("Vertical", 0),
    Sketcher.Constraint("Horizontal", 1),
    Sketcher.Constraint("Vertical", 2),
    Sketcher.Constraint("Horizontal", 3),
    Sketcher.Constraint("DistanceY", 0, 2, -1, 1, 20.2144),
    Sketcher.Constraint("DistanceX", 1, 1, 1, 2, 3.141787),
    Sketcher.Constraint("DistanceY", 0, 2, 0, 1, 1.901607),
    Sketcher.Constraint("DistanceX", -1, 1, 1, 2, 1.99737),
])
pad10 = body.newObject("PartDesign::Pad", "Pad009")
pad10.Profile = sketch17
pad10.setExpression("Length", "Params.pad10_length")

# Sketch on XZ plane
sketch18 = body.newObject("Sketcher::SketchObject", "Sketch017")
sketch18.AttachmentSupport = (doc.getObject("XZ_Plane"), [""])
sketch18.MapMode = "FlatFace"
sketch18.AttachmentOffset = App.Placement(V(0, 0, 35), App.Rotation())
sketch18.addGeometry([
    Part.LineSegment(V(-68, 26, 0), V(-68, 18, 0)),
    Part.LineSegment(V(-68, 18, 0), V(-54, 18, 0)),
    Part.LineSegment(V(-54, 18, 0), V(-54, 26, 0)),
    Part.LineSegment(V(-54, 26, 0), V(-68, 26, 0)),
], False)
sketch18.addConstraint([
    Sketcher.Constraint("Coincident", 0, 2, 1, 1),
    Sketcher.Constraint("Coincident", 1, 2, 2, 1),
    Sketcher.Constraint("Coincident", 2, 2, 3, 1),
    Sketcher.Constraint("Coincident", 3, 2, 0, 1),
    Sketcher.Constraint("Vertical", 0),
    Sketcher.Constraint("Horizontal", 1),
    Sketcher.Constraint("Vertical", 2),
    Sketcher.Constraint("Horizontal", 3),
    Sketcher.Constraint("DistanceX", 1, 1, 1, 2, 15.0),
    Sketcher.Constraint("DistanceY", 0, 2, 0, 1, 8.0),
    Sketcher.Constraint("DistanceY", -1, 1, 0, 2, 18.0),
    Sketcher.Constraint("DistanceX", 0, 2, -1, 1, 68.5),
])
sketch18.setExpression("Constraints[8]", "Params.sketch18_width")
sketch18.setExpression("Constraints[9]", "Params.sketch18_height")
pocket8 = body.newObject("PartDesign::Pocket", "Pocket007")
pocket8.Profile = sketch18
pocket8.setExpression("Length", "Params.pocket8_length")

# Sketch on XY plane
sketch19 = body.newObject("Sketcher::SketchObject", "Sketch018")
sketch19.AttachmentSupport = (doc.getObject("XY_Plane"), [""])
sketch19.MapMode = "FlatFace"
sketch19.AttachmentOffset = App.Placement(V(0, 0, 8), App.Rotation())
sketch19.addGeometry([
    Part.LineSegment(V(-1.7, 6.5, 0), V(-1.7, 10.5, 0)),
    Part.LineSegment(V(-1.7, 10.5, 0), V(2.4, 10.5, 0)),
    Part.LineSegment(V(2.4, 10.5, 0), V(2.4, 6.5, 0)),
    Part.LineSegment(V(2.4, 6.5, 0), V(-1.7, 6.5, 0)),
], False)
sketch19.addConstraint([
    Sketcher.Constraint("Coincident", 0, 2, 1, 1),
    Sketcher.Constraint("Coincident", 1, 2, 2, 1),
    Sketcher.Constraint("Coincident", 2, 2, 3, 1),
    Sketcher.Constraint("Coincident", 3, 2, 0, 1),
    Sketcher.Constraint("Vertical", 0),
    Sketcher.Constraint("Horizontal", 1),
    Sketcher.Constraint("Vertical", 2),
    Sketcher.Constraint("Horizontal", 3),
    Sketcher.Constraint("DistanceY", 0, 1, 0, 2, 3.938392),
    Sketcher.Constraint("DistanceX", 1, 1, 1, 2, 4.140358),
    Sketcher.Constraint("DistanceX", 0, 2, -1, 1, 1.705402),
    Sketcher.Constraint("DistanceY", -1, 1, 0, 2, 10.459078),
])
pad11 = body.newObject("PartDesign::Pad", "Pad010")
pad11.Profile = sketch19
pad11.setExpression("Length", "Params.pad11_length")
doc.recompute()

fillet = body.newObject("PartDesign::Fillet", "Fillet")
fillet.Base = (pad11, edges_at(pad11, [
    (-46, -13, 4.5),
    (-21, -13, 4.5),
    (-21, -4, 8.5),
    (-46, -4, 8.5),
]))
fillet.setExpression("Radius", "Params.fillet_radius")

doc.recompute()
